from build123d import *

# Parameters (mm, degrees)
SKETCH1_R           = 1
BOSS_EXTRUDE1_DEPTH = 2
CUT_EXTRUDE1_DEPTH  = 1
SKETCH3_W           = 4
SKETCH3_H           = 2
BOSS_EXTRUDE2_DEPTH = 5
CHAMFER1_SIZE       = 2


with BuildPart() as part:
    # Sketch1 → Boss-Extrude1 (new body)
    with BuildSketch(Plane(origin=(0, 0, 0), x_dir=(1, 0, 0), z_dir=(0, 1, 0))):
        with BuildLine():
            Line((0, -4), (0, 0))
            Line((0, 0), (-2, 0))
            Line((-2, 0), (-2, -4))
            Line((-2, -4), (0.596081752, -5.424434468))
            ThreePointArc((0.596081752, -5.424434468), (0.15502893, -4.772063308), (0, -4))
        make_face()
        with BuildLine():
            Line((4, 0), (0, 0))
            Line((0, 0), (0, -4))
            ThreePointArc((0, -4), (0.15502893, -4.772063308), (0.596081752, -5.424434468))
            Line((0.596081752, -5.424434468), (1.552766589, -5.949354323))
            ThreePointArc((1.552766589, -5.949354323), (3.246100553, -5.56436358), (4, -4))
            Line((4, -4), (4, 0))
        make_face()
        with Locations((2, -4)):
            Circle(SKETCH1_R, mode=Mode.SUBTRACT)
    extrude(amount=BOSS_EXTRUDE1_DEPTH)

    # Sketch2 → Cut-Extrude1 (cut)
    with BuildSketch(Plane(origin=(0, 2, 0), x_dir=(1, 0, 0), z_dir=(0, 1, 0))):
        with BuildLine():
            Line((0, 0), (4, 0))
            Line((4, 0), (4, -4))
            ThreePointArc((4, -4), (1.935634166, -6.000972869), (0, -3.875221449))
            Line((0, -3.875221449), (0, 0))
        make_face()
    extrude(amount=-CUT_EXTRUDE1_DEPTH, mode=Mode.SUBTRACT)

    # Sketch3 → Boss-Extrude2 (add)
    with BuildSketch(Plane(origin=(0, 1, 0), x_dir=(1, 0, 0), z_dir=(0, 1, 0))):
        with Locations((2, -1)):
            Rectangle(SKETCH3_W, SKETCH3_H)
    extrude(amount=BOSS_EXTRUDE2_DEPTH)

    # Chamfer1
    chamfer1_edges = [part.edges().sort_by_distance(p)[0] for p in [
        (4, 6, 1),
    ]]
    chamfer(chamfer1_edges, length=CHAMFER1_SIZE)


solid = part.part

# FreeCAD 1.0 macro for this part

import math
import FreeCAD as App
import Part
import Sketcher
Q = App.Units.Quantity


def edges_at(feature, points):
    """Names of the edges that pass closest to the given points."""
    edges = feature.Shape.Edges
    near = lambda p: min(range(len(edges)), key=lambda i: edges[i].distToShape(Part.Vertex(*p))[0])
    return sorted({f"Edge{near(p) + 1}" for p in points})


def add_polygon(sketch, points):
    """Adds a closed chain of lines whose ends are joined by coincident constraints."""
    first, n = sketch.GeometryCount, len(points)
    for a, b in zip(points, points[1:] + points[:1]):
        sketch.addGeometry(Part.LineSegment(App.Vector(*a, 0), App.Vector(*b, 0)), False)
    for i in range(n):
        sketch.addConstraint(Sketcher.Constraint("Coincident", first + i, 2, first + (i + 1) % n, 1))

doc = App.newDocument("Part")
params = doc.addObject("Spreadsheet::Sheet", "Params")
for row, (alias, value) in enumerate([
    ("sketch1_diameter", "2 mm"),
    ("sketch1_radius", "2 mm"),
    ("sketch1_width", "6 mm"),
    ("sketch1_height", "4 mm"),
    ("pad1_length", "2 mm"),
    ("sketch2_width", "4 mm"),
    ("pocket1_length", "1 mm"),
    ("sketch3_width", "4 mm"),
    ("sketch3_height", "2 mm"),
    ("pad2_length", "5 mm"),
    ("chamfer_size", "2 mm"),
], start=1):
    params.set(f"A{row}", alias)
    params.set(f"B{row}", "=" + value)
    params.setAlias(f"B{row}", alias)

body = doc.addObject("PartDesign::Body", "Body")

# Sketch on XZ plane
sketch1 = body.newObject("Sketcher::SketchObject", "Sketch")
sketch1.AttachmentSupport = (doc.getObject("XZ_Plane"), [""])
sketch1.MapMode = "FlatFace"
sketch1.addGeometry([
    Part.LineSegment(App.Vector(-2, 0, 0), App.Vector(-2, 4, 0)),  # 0
    Part.LineSegment(App.Vector(-2, 4, 0), App.Vector(0.6, 5.4, 0)),  # 1
    Part.LineSegment(App.Vector(0.6, 5.4, 0), App.Vector(1.6, 5.9, 0)),  # 2
    Part.ArcOfCircle(Part.Circle(App.Vector(2, 4, 0), App.Vector(0, 0, 1), 2), math.radians(0), math.radians(103)),  # 3
    Part.LineSegment(App.Vector(4, 4, 0), App.Vector(4, 0, 0)),  # 4
    Part.LineSegment(App.Vector(4, 0, 0), App.Vector(-2, 0, 0)),  # 5
    Part.Circle(App.Vector(2, 4, 0), App.Vector(0, 0, 1), 1),  # 6
], False)
sketch1.addConstraint([
    Sketcher.Constraint("Coincident", 0, 2, 1, 1),
    Sketcher.Constraint("Coincident", 1, 2, 2, 1),
    Sketcher.Constraint("Coincident", 2, 2, 3, 2),
    Sketcher.Constraint("Tangent", 3, 1, 4, 1),
    Sketcher.Constraint("Coincident", 4, 2, 5, 1),
    Sketcher.Constraint("Coincident", 5, 2, 0, 1),
    Sketcher.Constraint("Vertical", 0),
    Sketcher.Constraint("Vertical", 4),
    Sketcher.Constraint("Horizontal", 5),
    Sketcher.Constraint("Coincident", 6, 3, 3, 3),
    Sketcher.Constraint("PointOnObject", 4, 2, -1),
    Sketcher.Constraint("Parallel", 1, 2),
    Sketcher.Constraint("Horizontal", 6, 3, 0, 2),
    Sketcher.Constraint("Diameter", 6, Q("2 mm")),
    Sketcher.Constraint("Radius", 3, Q("2 mm")),
    Sketcher.Constraint("DistanceX", 5, 2, 5, 1, Q("6 mm")),
    Sketcher.Constraint("DistanceY", 0, 1, 0, 2, Q("4 mm")),
    Sketcher.Constraint("DistanceX", -1, 1, 3, 3, Q("2 mm")),
    Sketcher.Constraint("Distance", 1, Q("2.961191 mm")),
    Sketcher.Constraint("Distance", 2, Q("1.091232 mm")),
])
sketch1.setExpression("Constraints[13]", "Params.sketch1_diameter")
sketch1.setExpression("Constraints[14]", "Params.sketch1_radius")
sketch1.setExpression("Constraints[15]", "Params.sketch1_width")
sketch1.setExpression("Constraints[16]", "Params.sketch1_height")
pad1 = body.newObject("PartDesign::Pad", "Pad")
pad1.Profile = sketch1
pad1.setExpression("Length", "Params.pad1_length")
pad1.Reversed = True

# Sketch on XZ plane
sketch2 = body.newObject("Sketcher::SketchObject", "Sketch001")
sketch2.AttachmentSupport = (doc.getObject("XZ_Plane"), [""])
sketch2.MapMode = "FlatFace"
sketch2.AttachmentOffset = App.Placement(App.Vector(0, 0, -2), App.Rotation())
sketch2.addGeometry([
    Part.LineSegment(App.Vector(4, 0, 0), App.Vector(0, 0, 0)),
    Part.LineSegment(App.Vector(0, 0, 0), App.Vector(0, 3.9, 0)),
    Part.ArcOfCircle(Part.Circle(App.Vector(2, 4, 0), App.Vector(0, 0, 1), 2), math.radians(0), math.radians(184)),
    Part.LineSegment(App.Vector(4, 4, 0), App.Vector(4, 0, 0)),
], False)
sketch2.addConstraint([
    Sketcher.Constraint("Coincident", 0, 2, 1, 1),
    Sketcher.Constraint("Coincident", 1, 2, 2, 2),
    Sketcher.Constraint("Tangent", 2, 1, 3, 1),
    Sketcher.Constraint("Coincident", 3, 2, 0, 1),
    Sketcher.Constraint("Horizontal", 0),
    Sketcher.Constraint("Vertical", 1),
    Sketcher.Constraint("Vertical", 3),
    Sketcher.Constraint("Coincident", 0, 2, -1, 1),
    Sketcher.Constraint("Equal", 0, 3),
    Sketcher.Constraint("DistanceX", 0, 2, 0, 1, Q("4 mm")),
    Sketcher.Constraint("Radius", 2, Q("2.001946 mm")),
])
sketch2.setExpression("Constraints[9]", "Params.sketch2_width")
pocket1 = body.newObject("PartDesign::Pocket", "Pocket")
pocket1.Profile = sketch2
pocket1.setExpression("Length", "Params.pocket1_length")
pocket1.Reversed = True

# Sketch on XZ plane
sketch3 = body.newObject("Sketcher::SketchObject", "Sketch002")
sketch3.AttachmentSupport = (doc.getObject("XZ_Plane"), [""])
sketch3.MapMode = "FlatFace"
sketch3.AttachmentOffset = App.Placement(App.Vector(0, 0, -1), App.Rotation())
add_polygon(sketch3, [(0, 0), (0, 2), (4, 2), (4, 0)])  # lines 0-3
sketch3.addConstraint([
    Sketcher.Constraint("Vertical", 0),
    Sketcher.Constraint("Horizontal", 1),
    Sketcher.Constraint("Vertical", 2),
    Sketcher.Constraint("Horizontal", 3),
    Sketcher.Constraint("Coincident", 3, 2, -1, 1),
    Sketcher.Constraint("DistanceX", 1, 1, 1, 2, Q("4 mm")),
    Sketcher.Constraint("DistanceY", 0, 1, 0, 2, Q("2 mm")),
])
sketch3.setExpression("Constraints[9]", "Params.sketch3_width")
sketch3.setExpression("Constraints[10]", "Params.sketch3_height")
pad2 = body.newObject("PartDesign::Pad", "Pad001")
pad2.Profile = sketch3
pad2.setExpression("Length", "Params.pad2_length")
pad2.Reversed = True
doc.recompute()

chamfer = body.newObject("PartDesign::Chamfer", "Chamfer")
chamfer.Base = (pad2, edges_at(pad2, [(4, 6, 1)]))
chamfer.setExpression("Size", "Params.chamfer_size")

doc.recompute()
